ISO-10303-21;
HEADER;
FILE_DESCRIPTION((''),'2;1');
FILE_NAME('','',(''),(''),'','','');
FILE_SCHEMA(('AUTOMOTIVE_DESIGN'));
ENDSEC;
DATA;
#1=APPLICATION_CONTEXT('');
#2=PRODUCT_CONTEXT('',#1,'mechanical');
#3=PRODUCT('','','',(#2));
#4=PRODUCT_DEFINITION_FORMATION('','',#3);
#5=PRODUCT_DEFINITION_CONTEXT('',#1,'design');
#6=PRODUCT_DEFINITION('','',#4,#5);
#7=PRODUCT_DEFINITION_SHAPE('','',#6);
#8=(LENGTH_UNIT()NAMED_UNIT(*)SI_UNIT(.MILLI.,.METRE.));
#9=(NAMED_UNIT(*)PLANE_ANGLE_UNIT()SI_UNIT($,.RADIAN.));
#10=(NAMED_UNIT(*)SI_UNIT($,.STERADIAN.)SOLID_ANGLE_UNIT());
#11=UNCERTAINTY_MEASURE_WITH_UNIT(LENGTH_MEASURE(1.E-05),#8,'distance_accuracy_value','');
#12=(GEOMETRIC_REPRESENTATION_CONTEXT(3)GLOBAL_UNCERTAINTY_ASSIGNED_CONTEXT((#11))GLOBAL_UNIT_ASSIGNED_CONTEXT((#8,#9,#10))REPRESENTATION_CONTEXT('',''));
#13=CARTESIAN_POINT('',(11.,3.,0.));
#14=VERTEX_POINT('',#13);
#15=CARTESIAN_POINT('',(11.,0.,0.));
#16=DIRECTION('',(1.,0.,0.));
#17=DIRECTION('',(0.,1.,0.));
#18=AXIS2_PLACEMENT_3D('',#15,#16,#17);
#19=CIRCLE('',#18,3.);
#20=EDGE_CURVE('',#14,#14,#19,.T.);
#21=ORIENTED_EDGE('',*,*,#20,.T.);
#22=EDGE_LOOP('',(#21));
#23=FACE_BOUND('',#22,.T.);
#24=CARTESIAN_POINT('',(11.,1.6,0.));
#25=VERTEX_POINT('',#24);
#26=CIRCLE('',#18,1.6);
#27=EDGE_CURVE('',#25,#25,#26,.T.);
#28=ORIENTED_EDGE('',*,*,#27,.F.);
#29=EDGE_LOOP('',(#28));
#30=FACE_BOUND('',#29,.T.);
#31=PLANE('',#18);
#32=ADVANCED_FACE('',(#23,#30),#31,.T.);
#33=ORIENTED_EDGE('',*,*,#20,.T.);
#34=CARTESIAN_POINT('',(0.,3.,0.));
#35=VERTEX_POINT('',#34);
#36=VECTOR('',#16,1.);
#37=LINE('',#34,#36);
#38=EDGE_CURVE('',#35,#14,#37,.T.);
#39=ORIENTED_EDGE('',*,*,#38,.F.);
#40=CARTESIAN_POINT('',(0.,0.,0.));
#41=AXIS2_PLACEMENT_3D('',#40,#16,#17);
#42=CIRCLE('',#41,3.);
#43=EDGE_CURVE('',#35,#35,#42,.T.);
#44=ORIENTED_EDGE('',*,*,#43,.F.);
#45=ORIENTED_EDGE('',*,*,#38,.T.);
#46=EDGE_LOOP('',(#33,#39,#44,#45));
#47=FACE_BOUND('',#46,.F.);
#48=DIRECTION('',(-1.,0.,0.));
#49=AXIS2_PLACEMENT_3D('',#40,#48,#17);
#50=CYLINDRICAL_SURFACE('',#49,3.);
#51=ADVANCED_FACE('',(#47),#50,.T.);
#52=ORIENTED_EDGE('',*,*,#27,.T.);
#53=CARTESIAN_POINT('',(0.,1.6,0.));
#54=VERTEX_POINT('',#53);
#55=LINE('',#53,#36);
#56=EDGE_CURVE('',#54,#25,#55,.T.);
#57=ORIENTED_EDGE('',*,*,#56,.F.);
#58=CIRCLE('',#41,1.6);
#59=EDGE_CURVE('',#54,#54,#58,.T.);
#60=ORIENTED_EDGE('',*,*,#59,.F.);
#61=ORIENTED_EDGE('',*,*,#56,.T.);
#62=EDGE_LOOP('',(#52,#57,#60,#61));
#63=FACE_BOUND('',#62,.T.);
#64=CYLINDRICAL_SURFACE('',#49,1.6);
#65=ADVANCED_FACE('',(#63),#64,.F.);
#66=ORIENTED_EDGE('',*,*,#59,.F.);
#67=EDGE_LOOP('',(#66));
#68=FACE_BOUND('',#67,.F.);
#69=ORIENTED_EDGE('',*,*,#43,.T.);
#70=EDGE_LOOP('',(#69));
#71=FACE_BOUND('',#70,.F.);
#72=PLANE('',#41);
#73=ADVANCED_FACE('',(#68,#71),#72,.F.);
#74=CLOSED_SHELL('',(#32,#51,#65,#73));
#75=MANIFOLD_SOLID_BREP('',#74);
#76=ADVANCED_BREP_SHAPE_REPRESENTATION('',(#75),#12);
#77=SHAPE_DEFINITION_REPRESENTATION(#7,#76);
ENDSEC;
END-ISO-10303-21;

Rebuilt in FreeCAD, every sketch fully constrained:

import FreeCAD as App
import Part
import Sketcher

V = App.Vector
Q = App.Units.Quantity

doc = App.newDocument("Part")
body = doc.addObject("PartDesign::Body", "Body")

# Sketch on YZ plane
sketch1 = body.newObject("Sketcher::SketchObject", "Sketch")
sketch1.AttachmentSupport = (doc.getObject("YZ_Plane"), [""])
sketch1.MapMode = "FlatFace"
sketch1.addGeometry(Part.Circle(V(0, 0, 0), V(0, 0, 1), 3), False)
sketch1.addGeometry(Part.Circle(V(0, 0, 0), V(0, 0, 1), 1.6), False)
sketch1.addConstraint(Sketcher.Constraint("Coincident", 0, 3, -1, 1))
sketch1.addConstraint(Sketcher.Constraint("Coincident", 1, 3, -1, 1))
sketch1.addConstraint(Sketcher.Constraint("Diameter", 0, Q("6 mm")))
sketch1.addConstraint(Sketcher.Constraint("Diameter", 1, Q("3.2 mm")))
pad1 = body.newObject("PartDesign::Pad", "Pad")
pad1.Profile = sketch1
pad1.Length = 11

doc.recompute()
